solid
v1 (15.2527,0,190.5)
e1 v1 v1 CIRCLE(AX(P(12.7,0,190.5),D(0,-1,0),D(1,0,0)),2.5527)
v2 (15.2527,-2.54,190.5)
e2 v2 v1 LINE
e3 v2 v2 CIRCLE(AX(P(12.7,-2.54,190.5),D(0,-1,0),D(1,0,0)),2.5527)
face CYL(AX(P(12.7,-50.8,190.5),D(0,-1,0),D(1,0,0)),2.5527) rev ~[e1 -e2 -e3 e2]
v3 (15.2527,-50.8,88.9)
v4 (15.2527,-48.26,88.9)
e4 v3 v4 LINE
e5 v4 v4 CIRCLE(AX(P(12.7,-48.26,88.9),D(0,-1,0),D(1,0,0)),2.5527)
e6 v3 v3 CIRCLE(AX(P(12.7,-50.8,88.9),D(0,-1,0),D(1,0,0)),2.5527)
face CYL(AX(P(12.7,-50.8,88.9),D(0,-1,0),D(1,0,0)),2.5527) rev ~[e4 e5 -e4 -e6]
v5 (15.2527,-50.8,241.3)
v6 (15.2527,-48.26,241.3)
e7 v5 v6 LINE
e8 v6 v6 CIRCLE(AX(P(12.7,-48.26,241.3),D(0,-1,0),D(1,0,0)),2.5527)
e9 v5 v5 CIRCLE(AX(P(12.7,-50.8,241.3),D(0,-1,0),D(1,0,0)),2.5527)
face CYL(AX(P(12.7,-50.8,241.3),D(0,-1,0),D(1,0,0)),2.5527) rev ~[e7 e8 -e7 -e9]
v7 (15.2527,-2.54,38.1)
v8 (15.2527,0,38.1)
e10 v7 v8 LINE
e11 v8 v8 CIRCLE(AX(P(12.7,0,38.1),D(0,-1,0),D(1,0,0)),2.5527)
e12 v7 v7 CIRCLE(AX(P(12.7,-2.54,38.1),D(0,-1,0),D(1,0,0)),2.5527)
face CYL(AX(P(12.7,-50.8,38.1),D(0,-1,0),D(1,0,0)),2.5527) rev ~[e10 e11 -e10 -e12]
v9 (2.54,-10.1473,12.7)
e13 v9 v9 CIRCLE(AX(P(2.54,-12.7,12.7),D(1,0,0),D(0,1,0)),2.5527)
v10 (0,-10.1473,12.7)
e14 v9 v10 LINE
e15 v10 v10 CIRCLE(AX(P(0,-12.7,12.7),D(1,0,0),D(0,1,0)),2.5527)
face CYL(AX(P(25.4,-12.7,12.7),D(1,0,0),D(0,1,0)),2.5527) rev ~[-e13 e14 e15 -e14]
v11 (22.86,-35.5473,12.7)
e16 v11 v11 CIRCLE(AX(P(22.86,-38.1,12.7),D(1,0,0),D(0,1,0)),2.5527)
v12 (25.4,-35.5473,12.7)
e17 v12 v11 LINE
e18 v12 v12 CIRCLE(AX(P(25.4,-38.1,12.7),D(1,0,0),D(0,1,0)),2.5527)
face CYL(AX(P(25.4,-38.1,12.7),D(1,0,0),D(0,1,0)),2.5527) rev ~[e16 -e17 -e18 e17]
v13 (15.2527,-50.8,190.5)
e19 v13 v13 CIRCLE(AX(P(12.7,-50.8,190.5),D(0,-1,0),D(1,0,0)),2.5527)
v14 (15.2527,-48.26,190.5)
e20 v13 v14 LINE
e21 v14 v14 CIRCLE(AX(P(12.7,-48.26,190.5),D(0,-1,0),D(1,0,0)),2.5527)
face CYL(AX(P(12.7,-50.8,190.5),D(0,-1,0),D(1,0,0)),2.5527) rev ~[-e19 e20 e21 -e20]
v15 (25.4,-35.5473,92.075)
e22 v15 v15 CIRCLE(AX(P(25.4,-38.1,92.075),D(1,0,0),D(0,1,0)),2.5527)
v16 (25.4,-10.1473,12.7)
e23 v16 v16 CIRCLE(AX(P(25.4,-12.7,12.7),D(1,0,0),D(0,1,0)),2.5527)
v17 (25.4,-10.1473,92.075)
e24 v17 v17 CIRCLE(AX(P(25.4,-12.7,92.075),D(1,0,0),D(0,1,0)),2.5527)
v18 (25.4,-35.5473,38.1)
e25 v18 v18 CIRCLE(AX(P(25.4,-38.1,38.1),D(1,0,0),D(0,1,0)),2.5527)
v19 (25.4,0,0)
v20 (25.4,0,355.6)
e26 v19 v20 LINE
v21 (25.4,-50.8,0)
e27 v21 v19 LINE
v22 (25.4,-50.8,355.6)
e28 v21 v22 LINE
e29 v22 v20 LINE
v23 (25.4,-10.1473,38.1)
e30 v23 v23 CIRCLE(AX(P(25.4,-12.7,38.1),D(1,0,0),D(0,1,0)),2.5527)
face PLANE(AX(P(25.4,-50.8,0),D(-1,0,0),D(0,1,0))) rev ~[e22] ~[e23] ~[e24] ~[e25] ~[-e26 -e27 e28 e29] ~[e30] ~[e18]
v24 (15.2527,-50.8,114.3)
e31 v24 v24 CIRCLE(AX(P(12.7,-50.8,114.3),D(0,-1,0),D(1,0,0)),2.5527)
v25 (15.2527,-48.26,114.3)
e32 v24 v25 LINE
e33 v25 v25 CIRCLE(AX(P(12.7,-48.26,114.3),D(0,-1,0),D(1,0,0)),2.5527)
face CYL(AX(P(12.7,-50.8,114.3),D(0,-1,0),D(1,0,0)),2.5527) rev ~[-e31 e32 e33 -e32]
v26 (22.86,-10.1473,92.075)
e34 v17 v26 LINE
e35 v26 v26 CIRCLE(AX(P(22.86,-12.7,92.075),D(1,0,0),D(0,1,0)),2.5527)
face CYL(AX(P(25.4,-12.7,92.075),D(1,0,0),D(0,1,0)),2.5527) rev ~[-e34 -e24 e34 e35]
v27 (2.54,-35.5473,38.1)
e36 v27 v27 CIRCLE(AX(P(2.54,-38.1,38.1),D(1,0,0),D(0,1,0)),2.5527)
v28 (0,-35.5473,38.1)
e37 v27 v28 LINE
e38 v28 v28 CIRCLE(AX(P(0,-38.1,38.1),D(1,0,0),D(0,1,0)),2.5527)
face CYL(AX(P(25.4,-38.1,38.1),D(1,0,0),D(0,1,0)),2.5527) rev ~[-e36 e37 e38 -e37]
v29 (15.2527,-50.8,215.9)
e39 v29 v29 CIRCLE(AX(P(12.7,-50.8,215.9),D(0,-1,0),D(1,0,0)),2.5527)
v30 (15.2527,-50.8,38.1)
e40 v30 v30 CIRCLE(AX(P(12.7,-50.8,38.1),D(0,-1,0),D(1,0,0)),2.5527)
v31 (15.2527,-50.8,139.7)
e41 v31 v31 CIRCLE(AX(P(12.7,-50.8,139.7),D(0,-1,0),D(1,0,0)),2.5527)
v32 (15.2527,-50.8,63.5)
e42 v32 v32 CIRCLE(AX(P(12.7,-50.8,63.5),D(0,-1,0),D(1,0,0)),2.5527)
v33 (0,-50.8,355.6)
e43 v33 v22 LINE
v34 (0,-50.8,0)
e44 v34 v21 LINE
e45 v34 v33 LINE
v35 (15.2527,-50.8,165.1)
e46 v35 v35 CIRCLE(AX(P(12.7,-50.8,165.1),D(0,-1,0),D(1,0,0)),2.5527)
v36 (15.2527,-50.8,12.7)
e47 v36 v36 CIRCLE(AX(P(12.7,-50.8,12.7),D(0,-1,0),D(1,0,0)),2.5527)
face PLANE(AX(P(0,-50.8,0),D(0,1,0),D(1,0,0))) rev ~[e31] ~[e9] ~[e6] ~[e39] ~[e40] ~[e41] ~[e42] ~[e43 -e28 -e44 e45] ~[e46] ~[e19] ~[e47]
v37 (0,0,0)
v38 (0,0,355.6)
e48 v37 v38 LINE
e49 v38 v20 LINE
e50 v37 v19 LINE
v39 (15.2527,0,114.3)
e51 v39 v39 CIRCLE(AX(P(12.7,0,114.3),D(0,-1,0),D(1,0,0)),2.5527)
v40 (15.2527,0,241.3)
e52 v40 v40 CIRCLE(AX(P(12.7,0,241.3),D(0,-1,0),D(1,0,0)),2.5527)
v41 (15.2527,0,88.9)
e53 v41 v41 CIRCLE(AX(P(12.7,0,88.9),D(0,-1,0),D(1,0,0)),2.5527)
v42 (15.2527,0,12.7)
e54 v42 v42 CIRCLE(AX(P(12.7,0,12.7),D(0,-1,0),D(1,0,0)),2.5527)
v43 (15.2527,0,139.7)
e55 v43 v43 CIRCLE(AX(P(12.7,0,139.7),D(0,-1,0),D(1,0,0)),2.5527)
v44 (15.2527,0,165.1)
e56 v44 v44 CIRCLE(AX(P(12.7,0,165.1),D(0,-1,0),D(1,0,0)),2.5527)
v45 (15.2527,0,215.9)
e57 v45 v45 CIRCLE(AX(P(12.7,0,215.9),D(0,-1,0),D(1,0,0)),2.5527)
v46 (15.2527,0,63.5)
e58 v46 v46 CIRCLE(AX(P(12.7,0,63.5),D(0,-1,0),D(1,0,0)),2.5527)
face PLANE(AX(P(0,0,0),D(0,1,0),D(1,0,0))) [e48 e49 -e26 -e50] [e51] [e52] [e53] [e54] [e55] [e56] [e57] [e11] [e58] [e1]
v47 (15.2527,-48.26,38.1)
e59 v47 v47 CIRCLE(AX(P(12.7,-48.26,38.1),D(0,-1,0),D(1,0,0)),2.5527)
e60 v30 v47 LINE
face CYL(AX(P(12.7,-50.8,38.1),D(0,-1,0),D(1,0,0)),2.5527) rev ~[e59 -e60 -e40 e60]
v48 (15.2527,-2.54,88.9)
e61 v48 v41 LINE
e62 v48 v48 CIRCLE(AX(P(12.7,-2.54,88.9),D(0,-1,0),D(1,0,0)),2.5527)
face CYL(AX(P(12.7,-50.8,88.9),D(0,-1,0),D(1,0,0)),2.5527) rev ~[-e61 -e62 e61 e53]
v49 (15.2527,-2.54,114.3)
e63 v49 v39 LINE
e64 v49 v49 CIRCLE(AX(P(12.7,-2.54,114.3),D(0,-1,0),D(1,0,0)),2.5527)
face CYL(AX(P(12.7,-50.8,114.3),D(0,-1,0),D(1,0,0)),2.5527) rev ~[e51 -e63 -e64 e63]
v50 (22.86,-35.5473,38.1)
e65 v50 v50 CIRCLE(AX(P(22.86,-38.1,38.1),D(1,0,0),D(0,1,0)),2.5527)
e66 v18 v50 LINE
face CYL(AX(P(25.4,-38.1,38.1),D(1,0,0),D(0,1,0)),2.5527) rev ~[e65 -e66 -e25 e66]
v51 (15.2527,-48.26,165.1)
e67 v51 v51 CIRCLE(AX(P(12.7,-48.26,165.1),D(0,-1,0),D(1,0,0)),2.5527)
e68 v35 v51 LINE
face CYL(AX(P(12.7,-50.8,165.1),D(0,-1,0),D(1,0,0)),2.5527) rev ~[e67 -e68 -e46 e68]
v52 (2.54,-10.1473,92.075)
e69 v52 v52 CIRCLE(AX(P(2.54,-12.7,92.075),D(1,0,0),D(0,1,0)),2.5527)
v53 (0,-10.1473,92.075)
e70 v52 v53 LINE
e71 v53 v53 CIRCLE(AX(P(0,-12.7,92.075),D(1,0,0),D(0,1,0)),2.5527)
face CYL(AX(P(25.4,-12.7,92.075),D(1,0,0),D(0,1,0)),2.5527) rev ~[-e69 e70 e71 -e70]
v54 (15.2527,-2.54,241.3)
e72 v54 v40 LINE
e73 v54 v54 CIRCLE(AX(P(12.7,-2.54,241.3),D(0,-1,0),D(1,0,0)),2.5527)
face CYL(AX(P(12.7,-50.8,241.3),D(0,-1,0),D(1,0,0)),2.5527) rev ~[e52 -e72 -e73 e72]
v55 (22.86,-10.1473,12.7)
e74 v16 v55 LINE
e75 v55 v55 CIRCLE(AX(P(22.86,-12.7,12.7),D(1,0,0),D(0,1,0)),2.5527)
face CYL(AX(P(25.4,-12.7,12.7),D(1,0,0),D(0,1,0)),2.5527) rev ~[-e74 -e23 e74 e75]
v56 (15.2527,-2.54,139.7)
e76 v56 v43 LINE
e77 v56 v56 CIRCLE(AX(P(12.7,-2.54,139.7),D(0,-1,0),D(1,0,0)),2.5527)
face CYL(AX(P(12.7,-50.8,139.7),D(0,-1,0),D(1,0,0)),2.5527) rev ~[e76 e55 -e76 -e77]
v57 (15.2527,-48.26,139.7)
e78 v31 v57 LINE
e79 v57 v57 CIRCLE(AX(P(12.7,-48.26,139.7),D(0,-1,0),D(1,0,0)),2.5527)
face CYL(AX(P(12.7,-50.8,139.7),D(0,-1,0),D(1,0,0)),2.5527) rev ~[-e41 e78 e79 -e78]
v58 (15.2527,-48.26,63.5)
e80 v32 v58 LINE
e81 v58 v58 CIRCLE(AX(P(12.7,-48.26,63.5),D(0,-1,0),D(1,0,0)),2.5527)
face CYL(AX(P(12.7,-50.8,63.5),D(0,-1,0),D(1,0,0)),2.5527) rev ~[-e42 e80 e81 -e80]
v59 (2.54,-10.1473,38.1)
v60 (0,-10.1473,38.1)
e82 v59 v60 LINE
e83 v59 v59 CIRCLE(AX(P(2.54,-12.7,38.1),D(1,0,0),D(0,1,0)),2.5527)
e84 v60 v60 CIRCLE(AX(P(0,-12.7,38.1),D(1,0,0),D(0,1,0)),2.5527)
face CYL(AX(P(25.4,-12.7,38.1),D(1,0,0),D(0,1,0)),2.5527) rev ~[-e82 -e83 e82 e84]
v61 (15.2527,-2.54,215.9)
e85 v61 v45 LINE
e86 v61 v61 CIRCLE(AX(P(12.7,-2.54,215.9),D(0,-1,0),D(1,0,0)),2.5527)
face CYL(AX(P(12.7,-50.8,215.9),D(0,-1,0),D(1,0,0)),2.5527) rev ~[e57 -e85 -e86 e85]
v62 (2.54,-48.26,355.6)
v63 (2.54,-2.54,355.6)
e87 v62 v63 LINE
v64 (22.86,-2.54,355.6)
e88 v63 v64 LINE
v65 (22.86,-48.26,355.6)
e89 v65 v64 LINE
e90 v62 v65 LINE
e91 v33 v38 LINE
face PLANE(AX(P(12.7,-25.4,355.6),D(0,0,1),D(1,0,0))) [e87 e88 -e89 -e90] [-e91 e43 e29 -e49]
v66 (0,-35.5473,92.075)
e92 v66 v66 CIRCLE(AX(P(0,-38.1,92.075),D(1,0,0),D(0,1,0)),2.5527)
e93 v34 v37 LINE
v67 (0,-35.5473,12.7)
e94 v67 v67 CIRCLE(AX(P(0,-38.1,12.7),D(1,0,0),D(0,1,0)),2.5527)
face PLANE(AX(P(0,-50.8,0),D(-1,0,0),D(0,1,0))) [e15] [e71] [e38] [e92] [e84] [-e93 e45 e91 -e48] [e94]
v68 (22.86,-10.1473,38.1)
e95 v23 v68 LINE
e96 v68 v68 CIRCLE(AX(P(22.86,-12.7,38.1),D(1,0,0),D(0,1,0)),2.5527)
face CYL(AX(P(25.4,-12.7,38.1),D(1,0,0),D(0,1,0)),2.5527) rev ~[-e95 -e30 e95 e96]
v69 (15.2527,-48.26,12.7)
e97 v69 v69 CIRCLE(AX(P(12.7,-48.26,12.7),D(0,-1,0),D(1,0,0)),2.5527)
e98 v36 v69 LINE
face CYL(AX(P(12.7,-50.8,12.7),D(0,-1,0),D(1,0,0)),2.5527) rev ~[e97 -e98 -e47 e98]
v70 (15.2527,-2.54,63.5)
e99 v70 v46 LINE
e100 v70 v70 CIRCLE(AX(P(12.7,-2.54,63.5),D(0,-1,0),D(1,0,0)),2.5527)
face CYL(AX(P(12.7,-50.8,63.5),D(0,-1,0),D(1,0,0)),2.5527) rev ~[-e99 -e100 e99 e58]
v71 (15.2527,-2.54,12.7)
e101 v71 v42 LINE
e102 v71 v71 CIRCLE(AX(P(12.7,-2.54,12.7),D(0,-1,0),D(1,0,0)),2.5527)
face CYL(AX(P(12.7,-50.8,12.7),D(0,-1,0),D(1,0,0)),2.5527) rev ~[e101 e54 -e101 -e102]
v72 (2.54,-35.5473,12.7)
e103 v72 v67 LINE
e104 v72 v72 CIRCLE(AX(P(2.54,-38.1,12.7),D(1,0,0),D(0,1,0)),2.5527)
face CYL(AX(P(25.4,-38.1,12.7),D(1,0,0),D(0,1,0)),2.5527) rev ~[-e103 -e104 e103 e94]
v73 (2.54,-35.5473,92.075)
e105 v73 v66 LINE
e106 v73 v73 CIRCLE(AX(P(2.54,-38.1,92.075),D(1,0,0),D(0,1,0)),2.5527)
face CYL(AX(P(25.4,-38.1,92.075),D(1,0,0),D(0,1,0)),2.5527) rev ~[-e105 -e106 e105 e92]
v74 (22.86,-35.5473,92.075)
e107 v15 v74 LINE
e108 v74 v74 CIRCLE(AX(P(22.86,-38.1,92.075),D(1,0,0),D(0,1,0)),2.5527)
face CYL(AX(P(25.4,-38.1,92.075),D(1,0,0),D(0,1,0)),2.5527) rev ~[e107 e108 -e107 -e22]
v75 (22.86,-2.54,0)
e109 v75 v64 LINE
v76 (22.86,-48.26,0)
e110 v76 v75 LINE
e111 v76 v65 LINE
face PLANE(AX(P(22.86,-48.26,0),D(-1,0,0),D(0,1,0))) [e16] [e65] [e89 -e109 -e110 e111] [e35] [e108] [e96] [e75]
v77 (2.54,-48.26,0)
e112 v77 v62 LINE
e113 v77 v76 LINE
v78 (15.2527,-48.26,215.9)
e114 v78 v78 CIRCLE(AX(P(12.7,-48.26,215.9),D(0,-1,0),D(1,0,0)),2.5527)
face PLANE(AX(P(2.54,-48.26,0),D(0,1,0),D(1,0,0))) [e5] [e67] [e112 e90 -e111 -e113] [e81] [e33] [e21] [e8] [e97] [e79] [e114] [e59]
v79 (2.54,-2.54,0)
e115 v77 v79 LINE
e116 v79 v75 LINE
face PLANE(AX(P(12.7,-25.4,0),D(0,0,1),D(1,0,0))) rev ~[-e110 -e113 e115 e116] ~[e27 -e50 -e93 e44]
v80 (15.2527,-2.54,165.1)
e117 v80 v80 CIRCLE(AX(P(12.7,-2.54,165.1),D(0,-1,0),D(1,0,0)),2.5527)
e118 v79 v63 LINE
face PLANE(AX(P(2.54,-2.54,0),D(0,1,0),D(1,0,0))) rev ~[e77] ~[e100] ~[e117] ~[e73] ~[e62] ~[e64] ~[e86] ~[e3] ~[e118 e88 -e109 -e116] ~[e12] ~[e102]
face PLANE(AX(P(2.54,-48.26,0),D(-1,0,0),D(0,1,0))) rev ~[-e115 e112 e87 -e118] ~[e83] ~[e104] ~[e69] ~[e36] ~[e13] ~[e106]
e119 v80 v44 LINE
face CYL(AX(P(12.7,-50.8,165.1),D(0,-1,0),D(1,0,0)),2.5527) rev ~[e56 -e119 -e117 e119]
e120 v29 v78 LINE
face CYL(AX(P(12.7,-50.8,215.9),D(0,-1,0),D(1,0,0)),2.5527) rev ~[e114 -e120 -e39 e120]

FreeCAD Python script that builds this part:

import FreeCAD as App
import Part
import Sketcher
from FreeCAD import Vector
Q = App.Units.Quantity


def add_polygon(sketch, points):
    """Adds a closed chain of lines whose ends are joined by coincident constraints."""
    first, n = sketch.GeometryCount, len(points)
    for a, b in zip(points, points[1:] + points[:1]):
        sketch.addGeometry(Part.LineSegment(App.Vector(*a, 0), App.Vector(*b, 0)), False)
    for i in range(n):
        sketch.addConstraint(Sketcher.Constraint("Coincident", first + i, 2, first + (i + 1) % n, 1))

doc = App.newDocument("Part")
params = doc.addObject("Spreadsheet::Sheet", "Params")
for row, (alias, value) in enumerate([
    ("sketch1_width", "1 in"),
    ("sketch1_height", "2 in"),
    ("sketch1_width2", "0.8 in"),
    ("sketch1_height2", "1.8 in"),
    ("pad1_length", "14 in"),
    ("sketch2_diameter", "0.201 in"),
    ("pocket1_length", "2 in"),
    ("sketch3_diameter", "0.201 in"),
    ("pocket2_length", "1 in"),
], start=1):
    params.set(f"A{row}", alias)
    params.set(f"B{row}", "=" + value)
    params.setAlias(f"B{row}", alias)

body = doc.addObject("PartDesign::Body", "Body")

# Sketch on XY plane
sketch1 = body.newObject("Sketcher::SketchObject", "Sketch")
sketch1.AttachmentSupport = (doc.getObject("XY_Plane"), [""])
sketch1.MapMode = "FlatFace"
add_polygon(sketch1, [(0, 0), (0, -50.8), (25.4, -50.8), (25.4, 0)])  # lines 0-3
add_polygon(sketch1, [(22.86, -48.26), (2.54, -48.26), (2.54, -2.54), (22.86, -2.54)])  # lines 4-7
sketch1.addConstraint([
    Sketcher.Constraint("Vertical", 0),
    Sketcher.Constraint("Horizontal", 1),
    Sketcher.Constraint("Vertical", 2),
    Sketcher.Constraint("Horizontal", 3),
    Sketcher.Constraint("Horizontal", 4),
    Sketcher.Constraint("Vertical", 5),
    Sketcher.Constraint("Horizontal", 6),
    Sketcher.Constraint("Vertical", 7),
    Sketcher.Constraint("Coincident", 3, 2, -1, 1),
    Sketcher.Constraint("DistanceX", 1, 1, 1, 2, Q("1 in")),
    Sketcher.Constraint("DistanceY", 0, 2, 0, 1, Q("2 in")),
    Sketcher.Constraint("DistanceX", 4, 2, 4, 1, Q("0.8 in")),
    Sketcher.Constraint("DistanceY", 5, 1, 5, 2, Q("1.8 in")),
    Sketcher.Constraint("DistanceX", -1, 1, 4, 2, Q("0.1 in")),
    Sketcher.Constraint("DistanceY", 4, 2, -1, 1, Q("1.9 in")),
])
sketch1.setExpression("Constraints[17]", "Params.sketch1_width")
sketch1.setExpression("Constraints[18]", "Params.sketch1_height")
sketch1.setExpression("Constraints[19]", "Params.sketch1_width2")
sketch1.setExpression("Constraints[20]", "Params.sketch1_height2")
pad1 = body.newObject("PartDesign::Pad", "Pad")
pad1.Profile = sketch1
pad1.setExpression("Length", "Params.pad1_length")

# Sketch on XZ plane
sketch2 = body.newObject("Sketcher::SketchObject", "Sketch001")
sketch2.AttachmentSupport = (doc.getObject("XZ_Plane"), [""])
sketch2.MapMode = "FlatFace"
sketch2.AttachmentOffset = App.Placement(Vector(0, 0, 2 * 25.4), App.Rotation())
sketch2.addGeometry([
    Part.Circle(Vector(12.7, 139.7, 0), Vector(0, 0, 1), 2.5527),  # 0
    Part.Circle(Vector(12.7, 114.3, 0), Vector(0, 0, 1), 2.5527),  # 1
    Part.Circle(Vector(12.7, 88.9, 0), Vector(0, 0, 1), 2.5527),  # 2
    Part.Circle(Vector(12.7, 63.5, 0), Vector(0, 0, 1), 2.5527),  # 3
    Part.Circle(Vector(12.7, 38.1, 0), Vector(0, 0, 1), 2.5527),  # 4
    Part.Circle(Vector(12.7, 12.7, 0), Vector(0, 0, 1), 2.5527),  # 5
    Part.Circle(Vector(12.7, 165.1, 0), Vector(0, 0, 1), 2.5527),  # 6
    Part.Circle(Vector(12.7, 190.5, 0), Vector(0, 0, 1), 2.5527),  # 7
    Part.Circle(Vector(12.7, 215.9, 0), Vector(0, 0, 1), 2.5527),  # 8
    Part.Circle(Vector(12.7, 241.3, 0), Vector(0, 0, 1), 2.5527),  # 9
], False)
sketch2.addConstraint([
    Sketcher.Constraint("Equal", 0, 1),
    Sketcher.Constraint("Equal", 1, 2),
    Sketcher.Constraint("Equal", 2, 3),
    Sketcher.Constraint("Equal", 3, 4),
    Sketcher.Constraint("Equal", 4, 5),
    Sketcher.Constraint("Equal", 5, 6),
    Sketcher.Constraint("Equal", 6, 7),
    Sketcher.Constraint("Equal", 7, 8),
    Sketcher.Constraint("Equal", 8, 9),
    Sketcher.Constraint("Vertical", 0, 3, 1, 3),
    Sketcher.Constraint("Vertical", 1, 3, 2, 3),
    Sketcher.Constraint("Vertical", 2, 3, 3, 3),
    Sketcher.Constraint("Vertical", 3, 3, 4, 3),
    Sketcher.Constraint("Vertical", 4, 3, 5, 3),
    Sketcher.Constraint("Vertical", 5, 3, 6, 3),
    Sketcher.Constraint("Vertical", 6, 3, 7, 3),
    Sketcher.Constraint("Vertical", 7, 3, 8, 3),
    Sketcher.Constraint("Vertical", 8, 3, 9, 3),
    Sketcher.Constraint("Diameter", 0, Q("0.201 in")),
    Sketcher.Constraint("DistanceY", 1, 3, 0, 3, Q("1 in")),
    Sketcher.Constraint("DistanceY", 2, 3, 1, 3, Q("1 in")),
    Sketcher.Constraint("DistanceY", 3, 3, 2, 3, Q("1 in")),
    Sketcher.Constraint("DistanceY", 4, 3, 3, 3, Q("1 in")),
    Sketcher.Constraint("DistanceY", 5, 3, 4, 3, Q("1 in")),
    Sketcher.Constraint("DistanceY", 0, 3, 6, 3, Q("1 in")),
    Sketcher.Constraint("DistanceY", 6, 3, 7, 3, Q("1 in")),
    Sketcher.Constraint("DistanceY", 7, 3, 8, 3, Q("1 in")),
    Sketcher.Constraint("DistanceY", 8, 3, 9, 3, Q("1 in")),
    Sketcher.Constraint("DistanceX", -1, 1, 0, 3, Q("0.5 in")),
    Sketcher.Constraint("DistanceY", -1, 1, 0, 3, Q("5.5 in")),
])
sketch2.setExpression("Constraints[18]", "Params.sketch2_diameter")
pocket1 = body.newObject("PartDesign::Pocket", "Pocket")
pocket1.Profile = sketch2
pocket1.setExpression("Length", "Params.pocket1_length")

# Sketch on YZ plane
sketch3 = body.newObject("Sketcher::SketchObject", "Sketch002")
sketch3.AttachmentSupport = (doc.getObject("YZ_Plane"), [""])
sketch3.MapMode = "FlatFace"
sketch3.AttachmentOffset = App.Placement(Vector(0, 0, 1 * 25.4), App.Rotation())
sketch3.addGeometry([
    Part.Circle(Vector(-38.1, 38.1, 0), Vector(0, 0, 1), 2.5527),  # 0
    Part.Circle(Vector(-12.7, 38.1, 0), Vector(0, 0, 1), 2.5527),  # 1
    Part.Circle(Vector(-12.7, 12.7, 0), Vector(0, 0, 1), 2.5527),  # 2
    Part.Circle(Vector(-38.1, 12.7, 0), Vector(0, 0, 1), 2.5527),  # 3
    Part.Circle(Vector(-38.1, 92.075, 0), Vector(0, 0, 1), 2.5527),  # 4
    Part.Circle(Vector(-12.7, 92.075, 0), Vector(0, 0, 1), 2.5527),  # 5
], False)
sketch3.addConstraint([
    Sketcher.Constraint("Equal", 0, 1),
    Sketcher.Constraint("Equal", 1, 2),
    Sketcher.Constraint("Equal", 2, 3),
    Sketcher.Constraint("Equal", 3, 4),
    Sketcher.Constraint("Equal", 4, 5),
    Sketcher.Constraint("Horizontal", 0, 3, 1, 3),
    Sketcher.Constraint("Horizontal", 2, 3, 3, 3),
    Sketcher.Constraint("Horizontal", 4, 3, 5, 3),
    Sketcher.Constraint("Vertical", 1, 3, 2, 3),
    Sketcher.Constraint("Vertical", 0, 3, 3, 3),
    Sketcher.Constraint("Vertical", 3, 3, 4, 3),
    Sketcher.Constraint("Vertical", 2, 3, 5, 3),
    Sketcher.Constraint("Diameter", 0, Q("0.201 in")),
    Sketcher.Constraint("DistanceX", 0, 3, 1, 3, Q("1 in")),
    Sketcher.Constraint("DistanceY", 2, 3, 1, 3, Q("1 in")),
    Sketcher.Constraint("DistanceX", 0, 3, -1, 1, Q("1.5 in")),
    Sketcher.Constraint("DistanceY", -1, 1, 0, 3, Q("1.5 in")),
    Sketcher.Constraint("DistanceY", -1, 1, 4, 3, Q("3.625 in")),
])
sketch3.setExpression("Constraints[12]", "Params.sketch3_diameter")
pocket2 = body.newObject("PartDesign::Pocket", "Pocket001")
pocket2.Profile = sketch3
pocket2.setExpression("Length", "Params.pocket2_length")

doc.recompute()
